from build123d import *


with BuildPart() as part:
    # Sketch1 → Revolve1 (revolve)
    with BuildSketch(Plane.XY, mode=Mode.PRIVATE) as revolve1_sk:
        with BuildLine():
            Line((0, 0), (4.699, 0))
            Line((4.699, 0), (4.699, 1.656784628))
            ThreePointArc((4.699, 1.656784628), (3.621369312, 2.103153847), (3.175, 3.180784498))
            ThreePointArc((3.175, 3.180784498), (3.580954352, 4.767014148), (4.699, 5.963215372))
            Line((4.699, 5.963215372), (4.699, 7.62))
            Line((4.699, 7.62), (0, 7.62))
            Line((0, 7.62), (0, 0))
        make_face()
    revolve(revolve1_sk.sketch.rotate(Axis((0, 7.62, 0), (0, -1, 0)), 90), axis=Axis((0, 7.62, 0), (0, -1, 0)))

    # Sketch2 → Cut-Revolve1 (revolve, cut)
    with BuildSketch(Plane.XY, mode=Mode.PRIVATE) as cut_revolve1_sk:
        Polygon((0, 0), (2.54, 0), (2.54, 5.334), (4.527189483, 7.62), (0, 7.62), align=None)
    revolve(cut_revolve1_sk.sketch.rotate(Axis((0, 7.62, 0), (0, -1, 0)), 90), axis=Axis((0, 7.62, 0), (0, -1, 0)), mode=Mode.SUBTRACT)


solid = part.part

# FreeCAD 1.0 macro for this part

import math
import FreeCAD as App
import Part
import Sketcher

V = App.Vector
Q = App.Units.Quantity


def add_polygon(sketch, points):
    """Adds a closed chain of lines whose ends are joined by coincident constraints."""
    first, n = sketch.GeometryCount, len(points)
    for a, b in zip(points, points[1:] + points[:1]):
        sketch.addGeometry(Part.LineSegment(App.Vector(*a, 0), App.Vector(*b, 0)), False)
    for i in range(n):
        sketch.addConstraint(Sketcher.Constraint("Coincident", first + i, 2, first + (i + 1) % n, 1))

doc = App.newDocument("Part")
params = doc.addObject("Spreadsheet::Sheet", "Params")
for row, (alias, value) in enumerate([
    ("sketch1_radius", "0.06 in"),
    ("sketch1_radius2", "0.13 in"),
    ("sketch1_height", "0.3 in"),
    ("sketch1_width", "0.185 in"),
    ("revolution_angle", "360 deg"),
    ("sketch2_width", "0.1 in"),
    ("sketch2_height", "0.3 in"),
    ("sketch2_height2", "0.21 in"),
    ("groove_angle", "360 deg"),
], start=1):
    params.set(f"A{row}", alias)
    params.set(f"B{row}", "=" + value)
    params.setAlias(f"B{row}", alias)

body = doc.addObject("PartDesign::Body", "Body")

# Sketch on XY plane
sketch1 = doc.addObject("Sketcher::SketchObject", "Sketch")
body.addObject(sketch1)
sketch1.AttachmentSupport = (doc.XY_Plane, [""])
sketch1.MapMode = "FlatFace"
sketch1.addGeometry([
    Part.LineSegment(V(0, 0, 0), V(4.7, 0, 0)),  # 0
    Part.LineSegment(V(4.7, 0, 0), V(4.7, 1.7, 0)),  # 1
    Part.ArcOfCircle(Part.Circle(V(4.7, 3.2, 0), V(0, 0, 1), 1.5), math.radians(-180), math.radians(-90)),  # 2
    Part.ArcOfCircle(Part.Circle(V(6.5, 3.2, 0), V(0, 0, 1), 3.3), math.radians(123), math.radians(180)),  # 3
    Part.LineSegment(V(4.7, 6, 0), V(4.7, 7.6, 0)),  # 4
    Part.LineSegment(V(4.7, 7.6, 0), V(0, 7.6, 0)),  # 5
    Part.LineSegment(V(0, 7.6, 0), V(0, 0, 0)),  # 6
], False)
sketch1.addConstraint([
    Sketcher.Constraint("Coincident", 0, 2, 1, 1),
    Sketcher.Constraint("Coincident", 1, 2, 2, 2),
    Sketcher.Constraint("Tangent", 2, 1, 3, 2),
    Sketcher.Constraint("Coincident", 3, 1, 4, 1),
    Sketcher.Constraint("Coincident", 4, 2, 5, 1),
    Sketcher.Constraint("Coincident", 5, 2, 6, 1),
    Sketcher.Constraint("Coincident", 6, 2, 0, 1),
    Sketcher.Constraint("Horizontal", 0),
    Sketcher.Constraint("Vertical", 1),
    Sketcher.Constraint("Vertical", 4),
    Sketcher.Constraint("Horizontal", 5),
    Sketcher.Constraint("Vertical", 6),
    Sketcher.Constraint("Coincident", 6, 2, -1, 1),
    Sketcher.Constraint("Horizontal", 2, 3, 3, 3),
    Sketcher.Constraint("Vertical", 2, 3, 0, 2),
    Sketcher.Constraint("Vertical", 1, 2, 3, 1),
    Sketcher.Constraint("Equal", 1, 4),
    Sketcher.Constraint("Radius", 2, Q("0.06 in")),
    Sketcher.Constraint("Radius", 3, Q("0.13 in")),
    Sketcher.Constraint("DistanceY", 6, 2, 6, 1, Q("0.3 in")),
    Sketcher.Constraint("DistanceX", 0, 1, 0, 2, Q("0.185 in")),
])
sketch1.setExpression("Constraints[17]", "Params.sketch1_radius")
sketch1.setExpression("Constraints[18]", "Params.sketch1_radius2")
sketch1.setExpression("Constraints[19]", "Params.sketch1_height")
sketch1.setExpression("Constraints[20]", "Params.sketch1_width")
revolution = doc.addObject("PartDesign::Revolution", "Revolution")
body.addObject(revolution)
revolution.Profile = sketch1
revolution.ReferenceAxis = (sketch1, ["V_Axis"])
revolution.setExpression("Angle", "Params.revolution_angle")

# Sketch on XY plane
sketch2 = doc.addObject("Sketcher::SketchObject", "Sketch001")
body.addObject(sketch2)
sketch2.AttachmentSupport = (doc.XY_Plane, [""])
sketch2.MapMode = "FlatFace"
add_polygon(sketch2, [(0, 0), (2.5, 0), (2.5, 5.3), (4.5, 7.6), (0, 7.6)])  # lines 0-4
sketch2.addConstraint([
    Sketcher.Constraint("Horizontal", 0),
    Sketcher.Constraint("Vertical", 1),
    Sketcher.Constraint("Horizontal", 3),
    Sketcher.Constraint("Vertical", 4),
    Sketcher.Constraint("Coincident", 4, 2, -1, 1),
    Sketcher.Constraint("DistanceX", 0, 1, 0, 2, Q("0.1 in")),
    Sketcher.Constraint("DistanceY", 4, 2, 4, 1, Q("0.3 in")),
    Sketcher.Constraint("Angle", 2, Q("49 deg")),
    Sketcher.Constraint("DistanceY", 1, 1, 1, 2, Q("0.21 in")),
])
sketch2.setExpression("Constraints[10]", "Params.sketch2_width")
sketch2.setExpression("Constraints[11]", "Params.sketch2_height")
sketch2.setExpression("Constraints[13]", "Params.sketch2_height2")
groove = doc.addObject("PartDesign::Groove", "Groove")
body.addObject(groove)
groove.Profile = sketch2
groove.ReferenceAxis = (sketch2, ["V_Axis"])
groove.setExpression("Angle", "Params.groove_angle")

doc.recompute()
